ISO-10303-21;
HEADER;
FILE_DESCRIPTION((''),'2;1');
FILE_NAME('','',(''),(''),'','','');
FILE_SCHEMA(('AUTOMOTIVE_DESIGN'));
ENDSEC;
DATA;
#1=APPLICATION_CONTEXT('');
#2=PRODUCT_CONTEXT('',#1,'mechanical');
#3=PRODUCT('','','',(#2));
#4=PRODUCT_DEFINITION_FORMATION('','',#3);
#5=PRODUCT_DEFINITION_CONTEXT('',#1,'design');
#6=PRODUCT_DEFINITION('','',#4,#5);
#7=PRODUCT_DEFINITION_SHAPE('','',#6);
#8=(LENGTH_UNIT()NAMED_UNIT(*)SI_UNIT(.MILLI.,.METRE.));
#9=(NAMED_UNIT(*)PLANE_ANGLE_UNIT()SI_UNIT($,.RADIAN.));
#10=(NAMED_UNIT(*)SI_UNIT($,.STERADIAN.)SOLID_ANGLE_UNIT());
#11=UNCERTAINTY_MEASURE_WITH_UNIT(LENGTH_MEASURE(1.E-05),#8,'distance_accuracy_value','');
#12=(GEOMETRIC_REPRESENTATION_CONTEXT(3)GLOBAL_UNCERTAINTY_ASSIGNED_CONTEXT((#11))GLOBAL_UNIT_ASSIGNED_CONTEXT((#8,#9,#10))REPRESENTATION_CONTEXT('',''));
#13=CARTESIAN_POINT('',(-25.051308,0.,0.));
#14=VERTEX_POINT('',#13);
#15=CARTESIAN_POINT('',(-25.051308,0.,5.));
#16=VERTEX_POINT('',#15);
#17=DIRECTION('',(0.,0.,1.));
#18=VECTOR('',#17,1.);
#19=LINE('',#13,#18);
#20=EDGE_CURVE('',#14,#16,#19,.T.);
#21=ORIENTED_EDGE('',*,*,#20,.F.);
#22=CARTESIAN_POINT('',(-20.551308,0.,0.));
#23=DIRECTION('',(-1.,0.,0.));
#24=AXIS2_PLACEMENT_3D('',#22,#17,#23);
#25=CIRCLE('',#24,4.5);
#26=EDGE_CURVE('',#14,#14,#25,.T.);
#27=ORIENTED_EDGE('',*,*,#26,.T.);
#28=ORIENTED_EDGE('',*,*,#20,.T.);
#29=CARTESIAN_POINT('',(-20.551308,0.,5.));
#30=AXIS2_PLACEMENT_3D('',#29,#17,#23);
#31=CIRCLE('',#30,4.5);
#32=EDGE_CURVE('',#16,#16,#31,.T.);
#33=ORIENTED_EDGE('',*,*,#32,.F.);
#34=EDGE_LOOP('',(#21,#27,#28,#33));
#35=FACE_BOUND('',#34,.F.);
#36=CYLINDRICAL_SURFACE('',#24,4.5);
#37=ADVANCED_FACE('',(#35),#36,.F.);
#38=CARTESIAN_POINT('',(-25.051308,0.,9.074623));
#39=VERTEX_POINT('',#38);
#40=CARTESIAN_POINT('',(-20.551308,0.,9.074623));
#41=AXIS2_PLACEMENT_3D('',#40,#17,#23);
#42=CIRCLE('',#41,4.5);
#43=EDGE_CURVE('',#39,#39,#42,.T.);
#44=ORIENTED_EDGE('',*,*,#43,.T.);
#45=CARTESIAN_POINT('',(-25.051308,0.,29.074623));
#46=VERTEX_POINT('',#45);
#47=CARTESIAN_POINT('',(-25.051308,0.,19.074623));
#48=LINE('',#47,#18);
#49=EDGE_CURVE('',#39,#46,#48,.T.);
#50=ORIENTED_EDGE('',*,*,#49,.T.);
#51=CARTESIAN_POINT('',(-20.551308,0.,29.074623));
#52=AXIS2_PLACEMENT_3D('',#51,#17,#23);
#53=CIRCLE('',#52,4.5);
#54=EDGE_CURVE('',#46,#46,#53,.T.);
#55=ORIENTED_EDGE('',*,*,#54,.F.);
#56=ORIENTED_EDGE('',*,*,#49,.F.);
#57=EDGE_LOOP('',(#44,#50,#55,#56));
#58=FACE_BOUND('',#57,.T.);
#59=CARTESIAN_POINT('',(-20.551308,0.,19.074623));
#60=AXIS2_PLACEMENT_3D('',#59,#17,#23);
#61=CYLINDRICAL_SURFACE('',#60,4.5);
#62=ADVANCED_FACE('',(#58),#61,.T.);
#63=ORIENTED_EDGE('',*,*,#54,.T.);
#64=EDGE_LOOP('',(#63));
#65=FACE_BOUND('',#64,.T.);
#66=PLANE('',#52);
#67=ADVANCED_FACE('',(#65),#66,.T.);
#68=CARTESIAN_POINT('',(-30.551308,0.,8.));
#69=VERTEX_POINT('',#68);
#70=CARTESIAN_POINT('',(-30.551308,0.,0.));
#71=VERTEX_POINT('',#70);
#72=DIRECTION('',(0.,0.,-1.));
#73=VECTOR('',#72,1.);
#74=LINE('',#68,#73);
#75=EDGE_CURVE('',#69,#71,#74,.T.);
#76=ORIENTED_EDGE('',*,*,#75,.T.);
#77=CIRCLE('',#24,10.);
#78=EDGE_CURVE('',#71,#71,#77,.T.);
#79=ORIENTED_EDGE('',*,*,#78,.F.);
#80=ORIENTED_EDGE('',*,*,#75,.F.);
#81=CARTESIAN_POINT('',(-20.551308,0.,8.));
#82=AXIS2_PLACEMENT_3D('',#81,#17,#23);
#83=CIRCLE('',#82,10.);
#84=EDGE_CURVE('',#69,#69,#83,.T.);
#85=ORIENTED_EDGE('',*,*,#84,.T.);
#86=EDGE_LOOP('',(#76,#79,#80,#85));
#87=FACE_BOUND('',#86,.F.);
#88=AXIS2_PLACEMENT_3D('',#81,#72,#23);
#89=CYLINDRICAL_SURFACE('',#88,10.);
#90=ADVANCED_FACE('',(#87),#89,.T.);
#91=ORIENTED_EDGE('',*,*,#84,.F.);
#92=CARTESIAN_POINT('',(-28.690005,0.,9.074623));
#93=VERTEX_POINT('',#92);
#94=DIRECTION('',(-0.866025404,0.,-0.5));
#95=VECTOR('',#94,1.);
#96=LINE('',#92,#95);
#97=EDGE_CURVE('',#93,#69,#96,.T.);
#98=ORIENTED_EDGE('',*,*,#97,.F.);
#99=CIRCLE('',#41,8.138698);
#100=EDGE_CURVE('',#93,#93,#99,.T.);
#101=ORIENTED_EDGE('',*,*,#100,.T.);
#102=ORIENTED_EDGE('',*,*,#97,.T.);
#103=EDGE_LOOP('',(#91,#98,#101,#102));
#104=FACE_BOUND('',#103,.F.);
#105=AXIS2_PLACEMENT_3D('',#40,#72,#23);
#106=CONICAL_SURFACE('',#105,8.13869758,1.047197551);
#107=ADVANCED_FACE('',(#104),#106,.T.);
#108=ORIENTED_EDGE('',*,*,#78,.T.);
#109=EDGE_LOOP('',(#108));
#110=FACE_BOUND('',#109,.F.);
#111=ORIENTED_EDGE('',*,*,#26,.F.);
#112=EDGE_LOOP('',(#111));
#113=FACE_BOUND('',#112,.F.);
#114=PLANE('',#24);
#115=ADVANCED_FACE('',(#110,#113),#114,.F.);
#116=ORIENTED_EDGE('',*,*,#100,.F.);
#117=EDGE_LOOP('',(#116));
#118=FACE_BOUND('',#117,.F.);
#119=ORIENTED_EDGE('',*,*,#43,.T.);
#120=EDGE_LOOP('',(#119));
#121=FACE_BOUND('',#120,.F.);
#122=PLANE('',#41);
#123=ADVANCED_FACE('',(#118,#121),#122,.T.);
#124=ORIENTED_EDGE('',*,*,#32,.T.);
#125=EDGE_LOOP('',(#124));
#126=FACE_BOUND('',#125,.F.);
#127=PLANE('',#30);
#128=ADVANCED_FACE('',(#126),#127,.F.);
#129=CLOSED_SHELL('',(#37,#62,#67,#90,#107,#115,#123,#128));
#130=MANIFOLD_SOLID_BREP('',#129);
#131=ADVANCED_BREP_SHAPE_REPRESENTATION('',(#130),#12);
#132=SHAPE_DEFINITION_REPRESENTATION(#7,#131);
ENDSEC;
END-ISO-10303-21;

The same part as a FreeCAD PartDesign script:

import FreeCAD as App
import Part
import Sketcher
Q = App.Units.Quantity


def add_polygon(sketch, points):
    """Adds a closed chain of lines whose ends are joined by coincident constraints."""
    first, n = sketch.GeometryCount, len(points)
    for a, b in zip(points, points[1:] + points[:1]):
        sketch.addGeometry(Part.LineSegment(App.Vector(*a, 0), App.Vector(*b, 0)), False)
    for i in range(n):
        sketch.addConstraint(Sketcher.Constraint("Coincident", first + i, 2, first + (i + 1) % n, 1))

doc = App.newDocument("Part")
body = doc.addObject("PartDesign::Body", "Body")

sketch1 = body.newObject("Sketcher::SketchObject", "Sketch")
sketch1.AttachmentSupport = (doc.getObject("XZ_Plane"), [""])
sketch1.MapMode = "FlatFace"
add_polygon(sketch1, [(-25.1, 29.1), (-25.1, 9.1), (-28.7, 9.1), (-30.6, 8), (-30.6, 0), (-25.1, 0), (-25.1, 5), (-20.6, 5), (-20.6, 29.1)])
sketch1.addGeometry(Part.LineSegment(App.Vector(-20.6, 0, 0), App.Vector(-20.6, 29.1, 0)), True)
sketch1.addConstraint([
    Sketcher.Constraint("Vertical", 0),
    Sketcher.Constraint("Horizontal", 1),
    Sketcher.Constraint("Vertical", 3),
    Sketcher.Constraint("Horizontal", 4),
    Sketcher.Constraint("Vertical", 5),
    Sketcher.Constraint("Horizontal", 6),
    Sketcher.Constraint("Vertical", 7),
    Sketcher.Constraint("Horizontal", 8),
    Sketcher.Constraint("Vertical", 9),
    Sketcher.Constraint("Coincident", 9, 2, 7, 2),
    Sketcher.Constraint("PointOnObject", 3, 2, -1),
    Sketcher.Constraint("PointOnObject", 9, 1, -1),
    Sketcher.Constraint("Vertical", 0, 2, 4, 2),
    Sketcher.Constraint("DistanceY", 0, 2, 0, 1, 20.0),
    Sketcher.Constraint("DistanceY", 3, 2, 3, 1, 8.0),
    Sketcher.Constraint("DistanceY", 5, 1, 5, 2, 5.0),
    Sketcher.Constraint("Angle", 2, Q("-150 deg")),
    Sketcher.Constraint("DistanceX", 4, 1, 4, 2, 5.5),
    Sketcher.Constraint("DistanceX", 6, 1, 6, 2, 4.5),
    Sketcher.Constraint("DistanceX", 1, 2, 1, 1, 3.638698),
    Sketcher.Constraint("DistanceX", 0, 2, -1, 1, 25.051308),
])
revolution = body.newObject("PartDesign::Revolution", "Revolution")
revolution.Profile = sketch1
revolution.ReferenceAxis = (sketch1, ["Axis0"])
revolution.Angle = 360

doc.recompute()
